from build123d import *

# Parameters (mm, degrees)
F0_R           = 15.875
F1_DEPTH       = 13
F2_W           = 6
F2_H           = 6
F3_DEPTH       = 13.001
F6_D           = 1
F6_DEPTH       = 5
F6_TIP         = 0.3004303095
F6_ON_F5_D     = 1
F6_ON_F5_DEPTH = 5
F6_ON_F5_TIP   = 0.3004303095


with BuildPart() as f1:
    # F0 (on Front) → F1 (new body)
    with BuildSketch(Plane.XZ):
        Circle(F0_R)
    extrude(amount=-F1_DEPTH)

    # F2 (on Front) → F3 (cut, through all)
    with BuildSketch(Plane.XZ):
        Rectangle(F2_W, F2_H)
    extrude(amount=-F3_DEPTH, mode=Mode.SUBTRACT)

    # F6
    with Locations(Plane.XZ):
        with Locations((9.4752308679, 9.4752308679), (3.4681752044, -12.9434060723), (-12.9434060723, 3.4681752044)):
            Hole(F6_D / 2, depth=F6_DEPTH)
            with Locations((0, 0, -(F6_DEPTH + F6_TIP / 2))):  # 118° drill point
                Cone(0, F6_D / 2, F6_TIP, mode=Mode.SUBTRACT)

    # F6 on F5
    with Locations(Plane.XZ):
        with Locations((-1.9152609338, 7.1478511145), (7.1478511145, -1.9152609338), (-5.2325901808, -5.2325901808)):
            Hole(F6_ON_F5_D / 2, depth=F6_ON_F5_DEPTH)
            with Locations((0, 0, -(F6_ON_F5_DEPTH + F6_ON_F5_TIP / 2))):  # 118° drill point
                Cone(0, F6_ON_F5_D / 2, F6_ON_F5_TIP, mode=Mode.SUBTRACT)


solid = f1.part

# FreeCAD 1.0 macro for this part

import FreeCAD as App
import Part
import Sketcher
Q = App.Units.Quantity

doc = App.newDocument("Part")
body = doc.addObject("PartDesign::Body", "Body")

# Sketch on XZ plane
sketch1 = body.newObject("Sketcher::SketchObject", "Sketch")
sketch1.AttachmentSupport = (doc.getObject("XZ_Plane"), [""])
sketch1.MapMode = "FlatFace"
sketch1.addGeometry(Part.Circle(App.Vector(0, 0, 0), App.Vector(0, 0, 1), 16), False)
sketch1.addConstraint([
    Sketcher.Constraint("Coincident", 0, 3, -1, 1),
    Sketcher.Constraint("Diameter", 0, Q("31.75 mm")),
])
pad1 = body.newObject("PartDesign::Pad", "Pad")
pad1.Profile = sketch1
pad1.Length = 13
pad1.Reversed = True

# Sketch on XZ plane
sketch2 = body.newObject("Sketcher::SketchObject", "Sketch001")
sketch2.AttachmentSupport = (doc.getObject("XZ_Plane"), [""])
sketch2.MapMode = "FlatFace"
sketch2.addGeometry([
    Part.LineSegment(App.Vector(-3, 3, 0), App.Vector(-3, -3, 0)),
    Part.LineSegment(App.Vector(-3, -3, 0), App.Vector(3, -3, 0)),
    Part.LineSegment(App.Vector(3, -3, 0), App.Vector(3, 3, 0)),
    Part.LineSegment(App.Vector(3, 3, 0), App.Vector(-3, 3, 0)),
], False)
sketch2.addConstraint([
    Sketcher.Constraint("Coincident", 0, 2, 1, 1),
    Sketcher.Constraint("Coincident", 1, 2, 2, 1),
    Sketcher.Constraint("Coincident", 2, 2, 3, 1),
    Sketcher.Constraint("Coincident", 3, 2, 0, 1),
    Sketcher.Constraint("Vertical", 0),
    Sketcher.Constraint("Horizontal", 1),
    Sketcher.Constraint("Vertical", 2),
    Sketcher.Constraint("Horizontal", 3),
    Sketcher.Constraint("Symmetric", 0, 2, 2, 2, -1, 1),
    Sketcher.Constraint("Equal", 3, 0),
    Sketcher.Constraint("DistanceX", 1, 1, 1, 2, Q("6 mm")),
])
pocket1 = body.newObject("PartDesign::Pocket", "Pocket")
pocket1.Profile = sketch2
pocket1.Type = "ThroughAll"

# Sketch on XZ plane
sketch3 = body.newObject("Sketcher::SketchObject", "Sketch002")
sketch3.AttachmentSupport = (doc.getObject("XZ_Plane"), [""])
sketch3.MapMode = "FlatFace"
sketch3.addGeometry([
    Part.Circle(App.Vector(9.5, 9.5, 0), App.Vector(0, 0, 1), 0.5),
    Part.Circle(App.Vector(3.5, -12.9, 0), App.Vector(0, 0, 1), 0.5),
    Part.Circle(App.Vector(-12.9, 3.5, 0), App.Vector(0, 0, 1), 0.5),
], False)
sketch3.addConstraint([
    Sketcher.Constraint("Equal", 0, 1),
    Sketcher.Constraint("Equal", 1, 2),
    Sketcher.Constraint("Diameter", 0, Q("1 mm")),
    Sketcher.Constraint("DistanceX", -1, 1, 0, 3, Q("9.475231 mm")),
    Sketcher.Constraint("DistanceY", -1, 1, 0, 3, Q("9.475231 mm")),
    Sketcher.Constraint("DistanceX", 2, 3, 1, 3, Q("16.411581 mm")),
    Sketcher.Constraint("DistanceY", 1, 3, 2, 3, Q("16.411581 mm")),
    Sketcher.Constraint("DistanceX", -1, 1, 1, 3, Q("3.468175 mm")),
    Sketcher.Constraint("DistanceY", 1, 3, -1, 1, Q("12.943406 mm")),
])
doc.recompute()
hole = body.newObject("PartDesign::Hole", "Hole")
hole.Profile = sketch3
hole.ThreadType = "None"
hole.Diameter = 1
hole.DepthType = "Dimension"
hole.Depth = 5
hole.DrillPoint = "Angled"
hole.DrillPointAngle = 118

# Sketch on XZ plane
sketch4 = body.newObject("Sketcher::SketchObject", "Sketch003")
sketch4.AttachmentSupport = (doc.getObject("XZ_Plane"), [""])
sketch4.MapMode = "FlatFace"
sketch4.addGeometry([
    Part.Circle(App.Vector(-1.9, 7.1, 0), App.Vector(0, 0, 1), 0.5),
    Part.Circle(App.Vector(7.1, -1.9, 0), App.Vector(0, 0, 1), 0.5),
    Part.Circle(App.Vector(-5.2, -5.2, 0), App.Vector(0, 0, 1), 0.5),
], False)
sketch4.addConstraint([
    Sketcher.Constraint("Equal", 0, 1),
    Sketcher.Constraint("Equal", 1, 2),
    Sketcher.Constraint("Diameter", 0, Q("1 mm")),
    Sketcher.Constraint("DistanceX", 0, 3, -1, 1, Q("1.915261 mm")),
    Sketcher.Constraint("DistanceY", -1, 1, 0, 3, Q("7.147851 mm")),
    Sketcher.Constraint("DistanceX", -1, 1, 1, 3, Q("7.147851 mm")),
    Sketcher.Constraint("DistanceY", 1, 3, -1, 1, Q("1.915261 mm")),
    Sketcher.Constraint("DistanceX", 2, 3, -1, 1, Q("5.23259 mm")),
    Sketcher.Constraint("DistanceY", 2, 3, -1, 1, Q("5.23259 mm")),
])
doc.recompute()
hole2 = body.newObject("PartDesign::Hole", "Hole001")
hole2.Profile = sketch4
hole2.ThreadType = "None"
hole2.Diameter = 1
hole2.DepthType = "Dimension"
hole2.Depth = 5
hole2.DrillPoint = "Angled"
hole2.DrillPointAngle = 118

doc.recompute()
